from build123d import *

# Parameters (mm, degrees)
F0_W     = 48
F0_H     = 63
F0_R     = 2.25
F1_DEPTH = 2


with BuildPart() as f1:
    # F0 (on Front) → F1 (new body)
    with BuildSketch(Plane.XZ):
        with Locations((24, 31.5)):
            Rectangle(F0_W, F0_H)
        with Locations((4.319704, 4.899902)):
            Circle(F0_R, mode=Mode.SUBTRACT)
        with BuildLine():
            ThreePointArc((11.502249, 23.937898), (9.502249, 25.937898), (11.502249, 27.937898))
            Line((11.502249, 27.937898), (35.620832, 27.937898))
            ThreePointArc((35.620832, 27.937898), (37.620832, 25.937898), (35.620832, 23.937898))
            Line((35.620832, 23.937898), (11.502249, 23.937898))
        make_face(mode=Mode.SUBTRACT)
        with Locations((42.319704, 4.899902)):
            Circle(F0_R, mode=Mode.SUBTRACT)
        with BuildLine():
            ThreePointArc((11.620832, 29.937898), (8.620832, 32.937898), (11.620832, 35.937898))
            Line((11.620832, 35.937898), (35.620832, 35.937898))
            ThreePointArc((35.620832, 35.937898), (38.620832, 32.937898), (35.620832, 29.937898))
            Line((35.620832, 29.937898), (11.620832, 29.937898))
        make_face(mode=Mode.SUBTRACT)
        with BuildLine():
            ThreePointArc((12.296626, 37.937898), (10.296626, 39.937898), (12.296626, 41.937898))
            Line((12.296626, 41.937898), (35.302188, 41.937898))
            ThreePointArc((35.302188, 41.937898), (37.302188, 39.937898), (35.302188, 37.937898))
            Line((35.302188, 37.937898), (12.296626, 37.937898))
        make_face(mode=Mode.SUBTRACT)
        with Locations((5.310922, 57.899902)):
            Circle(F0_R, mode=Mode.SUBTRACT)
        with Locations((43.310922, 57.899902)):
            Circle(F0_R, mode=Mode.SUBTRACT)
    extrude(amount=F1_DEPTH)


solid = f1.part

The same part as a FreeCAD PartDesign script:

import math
import FreeCAD as App
import Part
import Sketcher
from FreeCAD import Vector

doc = App.newDocument("Part")
params = doc.addObject("Spreadsheet::Sheet", "Params")
for row, (alias, value) in enumerate([
    ("sketch1_radius", "2 mm"),
    ("sketch1_radius2", "3 mm"),
    ("sketch1_diameter", "4.5 mm"),
    ("sketch1_width", "48 mm"),
    ("sketch1_width2", "24 mm"),
    ("pad1_length", "2 mm"),
], start=1):
    params.set(f"A{row}", alias)
    params.set(f"B{row}", "=" + value)
    params.setAlias(f"B{row}", alias)

body = doc.addObject("PartDesign::Body", "Body")

sketch1 = body.newObject("Sketcher::SketchObject", "Sketch")
sketch1.AttachmentSupport = (doc.getObject("XZ_Plane"), [""])
sketch1.MapMode = "FlatFace"
sketch1.addGeometry([
    Part.LineSegment(Vector(0, 63, 0), Vector(0, 0, 0)),
    Part.LineSegment(Vector(0, 0, 0), Vector(48, 0, 0)),
    Part.LineSegment(Vector(48, 0, 0), Vector(48, 63, 0)),
    Part.LineSegment(Vector(48, 63, 0), Vector(0, 63, 0)),
    Part.Circle(Vector(4.319704, 4.899902, 0), Vector(0, 0, 1), 2.25),
    Part.LineSegment(Vector(35.620832, 23.937898, 0), Vector(11.502249, 23.937898, 0)),
    Part.ArcOfCircle(Part.Circle(Vector(11.502249, 25.937898, 0), Vector(0, 0, 1), 2), math.radians(90), math.radians(270)),
    Part.LineSegment(Vector(11.502249, 27.937898, 0), Vector(35.620832, 27.937898, 0)),
    Part.ArcOfCircle(Part.Circle(Vector(35.620832, 25.937898, 0), Vector(0, 0, 1), 2), math.radians(-90), math.radians(90)),
    Part.Circle(Vector(42.319704, 4.899902, 0), Vector(0, 0, 1), 2.25),
    Part.LineSegment(Vector(35.620832, 29.937898, 0), Vector(11.620832, 29.937898, 0)),
    Part.ArcOfCircle(Part.Circle(Vector(11.620832, 32.937898, 0), Vector(0, 0, 1), 3), math.radians(90), math.radians(270)),
    Part.LineSegment(Vector(11.620832, 35.937898, 0), Vector(35.620832, 35.937898, 0)),
    Part.ArcOfCircle(Part.Circle(Vector(35.620832, 32.937898, 0), Vector(0, 0, 1), 3), math.radians(-90), math.radians(90)),
    Part.LineSegment(Vector(35.302188, 37.937898, 0), Vector(12.296626, 37.937898, 0)),
    Part.ArcOfCircle(Part.Circle(Vector(12.296626, 39.937898, 0), Vector(0, 0, 1), 2), math.radians(90), math.radians(270)),
    Part.LineSegment(Vector(12.296626, 41.937898, 0), Vector(35.302188, 41.937898, 0)),
    Part.ArcOfCircle(Part.Circle(Vector(35.302188, 39.937898, 0), Vector(0, 0, 1), 2), math.radians(-90), math.radians(90)),
    Part.Circle(Vector(5.310922, 57.899902, 0), Vector(0, 0, 1), 2.25),
    Part.Circle(Vector(43.310922, 57.899902, 0), Vector(0, 0, 1), 2.25),
], False)
sketch1.addConstraint([
    Sketcher.Constraint("Coincident", 0, 2, 1, 1),
    Sketcher.Constraint("Coincident", 1, 2, 2, 1),
    Sketcher.Constraint("Coincident", 2, 2, 3, 1),
    Sketcher.Constraint("Coincident", 3, 2, 0, 1),
    Sketcher.Constraint("Tangent", 5, 2, 6, 2),
    Sketcher.Constraint("Tangent", 6, 1, 7, 1),
    Sketcher.Constraint("Tangent", 7, 2, 8, 2),
    Sketcher.Constraint("Tangent", 8, 1, 5, 1),
    Sketcher.Constraint("Tangent", 10, 2, 11, 2),
    Sketcher.Constraint("Tangent", 11, 1, 12, 1),
    Sketcher.Constraint("Tangent", 12, 2, 13, 2),
    Sketcher.Constraint("Tangent", 13, 1, 10, 1),
    Sketcher.Constraint("Tangent", 14, 2, 15, 2),
    Sketcher.Constraint("Tangent", 15, 1, 16, 1),
    Sketcher.Constraint("Tangent", 16, 2, 17, 2),
    Sketcher.Constraint("Tangent", 17, 1, 14, 1),
    Sketcher.Constraint("Vertical", 0),
    Sketcher.Constraint("Horizontal", 1),
    Sketcher.Constraint("Vertical", 2),
    Sketcher.Constraint("Horizontal", 3),
    Sketcher.Constraint("Horizontal", 5),
    Sketcher.Constraint("Horizontal", 7),
    Sketcher.Constraint("Horizontal", 10),
    Sketcher.Constraint("Horizontal", 12),
    Sketcher.Constraint("Horizontal", 14),
    Sketcher.Constraint("Horizontal", 16),
    Sketcher.Constraint("Coincident", 0, 2, -1, 1),
    Sketcher.Constraint("Equal", 4, 9),
    Sketcher.Constraint("Equal", 8, 15),
    Sketcher.Constraint("Equal", 9, 18),
    Sketcher.Constraint("Equal", 18, 19),
    Sketcher.Constraint("Horizontal", 4, 3, 9, 3),
    Sketcher.Constraint("Horizontal", 18, 3, 19, 3),
    Sketcher.Constraint("Vertical", 8, 3, 13, 3),
    Sketcher.Constraint("Radius", 6, 2.0),
    Sketcher.Constraint("Radius", 11, 3.0),
    Sketcher.Constraint("Diameter", 4, 4.5),
    Sketcher.Constraint("DistanceX", 1, 1, 1, 2, 48.0),
    Sketcher.Constraint("DistanceX", 10, 2, 10, 1, 24.0),
    Sketcher.Constraint("DistanceY", 0, 2, 0, 1, 63.0),
    Sketcher.Constraint("DistanceX", 4, 3, 9, 3, 38.0),
    Sketcher.Constraint("DistanceY", 6, 3, 11, 3, 7.0),
    Sketcher.Constraint("DistanceY", 11, 3, 15, 3, 7.0),
    Sketcher.Constraint("DistanceX", 18, 3, 19, 3, 38.0),
    Sketcher.Constraint("DistanceY", -1, 1, 6, 3, 25.937898),
    Sketcher.Constraint("DistanceY", -1, 1, 18, 3, 57.899902),
    Sketcher.Constraint("DistanceX", 5, 2, 5, 1, 24.118583),
    Sketcher.Constraint("DistanceX", 14, 2, 14, 1, 23.005562),
    Sketcher.Constraint("DistanceX", -1, 1, 6, 3, 11.502249),
    Sketcher.Constraint("DistanceX", -1, 1, 18, 3, 5.310922),
    Sketcher.Constraint("DistanceX", 4, 3, 11, 3, 7.301128),
    Sketcher.Constraint("DistanceX", 6, 3, 17, 3, 23.799939),
    Sketcher.Constraint("DistanceY", -1, 1, 4, 3, 4.899902),
])
sketch1.setExpression("Constraints[34]", "Params.sketch1_radius")
sketch1.setExpression("Constraints[35]", "Params.sketch1_radius2")
sketch1.setExpression("Constraints[36]", "Params.sketch1_diameter")
sketch1.setExpression("Constraints[37]", "Params.sketch1_width")
sketch1.setExpression("Constraints[38]", "Params.sketch1_width2")
pad1 = body.newObject("PartDesign::Pad", "Pad")
pad1.Profile = sketch1
pad1.setExpression("Length", "Params.pad1_length")

doc.recompute()
